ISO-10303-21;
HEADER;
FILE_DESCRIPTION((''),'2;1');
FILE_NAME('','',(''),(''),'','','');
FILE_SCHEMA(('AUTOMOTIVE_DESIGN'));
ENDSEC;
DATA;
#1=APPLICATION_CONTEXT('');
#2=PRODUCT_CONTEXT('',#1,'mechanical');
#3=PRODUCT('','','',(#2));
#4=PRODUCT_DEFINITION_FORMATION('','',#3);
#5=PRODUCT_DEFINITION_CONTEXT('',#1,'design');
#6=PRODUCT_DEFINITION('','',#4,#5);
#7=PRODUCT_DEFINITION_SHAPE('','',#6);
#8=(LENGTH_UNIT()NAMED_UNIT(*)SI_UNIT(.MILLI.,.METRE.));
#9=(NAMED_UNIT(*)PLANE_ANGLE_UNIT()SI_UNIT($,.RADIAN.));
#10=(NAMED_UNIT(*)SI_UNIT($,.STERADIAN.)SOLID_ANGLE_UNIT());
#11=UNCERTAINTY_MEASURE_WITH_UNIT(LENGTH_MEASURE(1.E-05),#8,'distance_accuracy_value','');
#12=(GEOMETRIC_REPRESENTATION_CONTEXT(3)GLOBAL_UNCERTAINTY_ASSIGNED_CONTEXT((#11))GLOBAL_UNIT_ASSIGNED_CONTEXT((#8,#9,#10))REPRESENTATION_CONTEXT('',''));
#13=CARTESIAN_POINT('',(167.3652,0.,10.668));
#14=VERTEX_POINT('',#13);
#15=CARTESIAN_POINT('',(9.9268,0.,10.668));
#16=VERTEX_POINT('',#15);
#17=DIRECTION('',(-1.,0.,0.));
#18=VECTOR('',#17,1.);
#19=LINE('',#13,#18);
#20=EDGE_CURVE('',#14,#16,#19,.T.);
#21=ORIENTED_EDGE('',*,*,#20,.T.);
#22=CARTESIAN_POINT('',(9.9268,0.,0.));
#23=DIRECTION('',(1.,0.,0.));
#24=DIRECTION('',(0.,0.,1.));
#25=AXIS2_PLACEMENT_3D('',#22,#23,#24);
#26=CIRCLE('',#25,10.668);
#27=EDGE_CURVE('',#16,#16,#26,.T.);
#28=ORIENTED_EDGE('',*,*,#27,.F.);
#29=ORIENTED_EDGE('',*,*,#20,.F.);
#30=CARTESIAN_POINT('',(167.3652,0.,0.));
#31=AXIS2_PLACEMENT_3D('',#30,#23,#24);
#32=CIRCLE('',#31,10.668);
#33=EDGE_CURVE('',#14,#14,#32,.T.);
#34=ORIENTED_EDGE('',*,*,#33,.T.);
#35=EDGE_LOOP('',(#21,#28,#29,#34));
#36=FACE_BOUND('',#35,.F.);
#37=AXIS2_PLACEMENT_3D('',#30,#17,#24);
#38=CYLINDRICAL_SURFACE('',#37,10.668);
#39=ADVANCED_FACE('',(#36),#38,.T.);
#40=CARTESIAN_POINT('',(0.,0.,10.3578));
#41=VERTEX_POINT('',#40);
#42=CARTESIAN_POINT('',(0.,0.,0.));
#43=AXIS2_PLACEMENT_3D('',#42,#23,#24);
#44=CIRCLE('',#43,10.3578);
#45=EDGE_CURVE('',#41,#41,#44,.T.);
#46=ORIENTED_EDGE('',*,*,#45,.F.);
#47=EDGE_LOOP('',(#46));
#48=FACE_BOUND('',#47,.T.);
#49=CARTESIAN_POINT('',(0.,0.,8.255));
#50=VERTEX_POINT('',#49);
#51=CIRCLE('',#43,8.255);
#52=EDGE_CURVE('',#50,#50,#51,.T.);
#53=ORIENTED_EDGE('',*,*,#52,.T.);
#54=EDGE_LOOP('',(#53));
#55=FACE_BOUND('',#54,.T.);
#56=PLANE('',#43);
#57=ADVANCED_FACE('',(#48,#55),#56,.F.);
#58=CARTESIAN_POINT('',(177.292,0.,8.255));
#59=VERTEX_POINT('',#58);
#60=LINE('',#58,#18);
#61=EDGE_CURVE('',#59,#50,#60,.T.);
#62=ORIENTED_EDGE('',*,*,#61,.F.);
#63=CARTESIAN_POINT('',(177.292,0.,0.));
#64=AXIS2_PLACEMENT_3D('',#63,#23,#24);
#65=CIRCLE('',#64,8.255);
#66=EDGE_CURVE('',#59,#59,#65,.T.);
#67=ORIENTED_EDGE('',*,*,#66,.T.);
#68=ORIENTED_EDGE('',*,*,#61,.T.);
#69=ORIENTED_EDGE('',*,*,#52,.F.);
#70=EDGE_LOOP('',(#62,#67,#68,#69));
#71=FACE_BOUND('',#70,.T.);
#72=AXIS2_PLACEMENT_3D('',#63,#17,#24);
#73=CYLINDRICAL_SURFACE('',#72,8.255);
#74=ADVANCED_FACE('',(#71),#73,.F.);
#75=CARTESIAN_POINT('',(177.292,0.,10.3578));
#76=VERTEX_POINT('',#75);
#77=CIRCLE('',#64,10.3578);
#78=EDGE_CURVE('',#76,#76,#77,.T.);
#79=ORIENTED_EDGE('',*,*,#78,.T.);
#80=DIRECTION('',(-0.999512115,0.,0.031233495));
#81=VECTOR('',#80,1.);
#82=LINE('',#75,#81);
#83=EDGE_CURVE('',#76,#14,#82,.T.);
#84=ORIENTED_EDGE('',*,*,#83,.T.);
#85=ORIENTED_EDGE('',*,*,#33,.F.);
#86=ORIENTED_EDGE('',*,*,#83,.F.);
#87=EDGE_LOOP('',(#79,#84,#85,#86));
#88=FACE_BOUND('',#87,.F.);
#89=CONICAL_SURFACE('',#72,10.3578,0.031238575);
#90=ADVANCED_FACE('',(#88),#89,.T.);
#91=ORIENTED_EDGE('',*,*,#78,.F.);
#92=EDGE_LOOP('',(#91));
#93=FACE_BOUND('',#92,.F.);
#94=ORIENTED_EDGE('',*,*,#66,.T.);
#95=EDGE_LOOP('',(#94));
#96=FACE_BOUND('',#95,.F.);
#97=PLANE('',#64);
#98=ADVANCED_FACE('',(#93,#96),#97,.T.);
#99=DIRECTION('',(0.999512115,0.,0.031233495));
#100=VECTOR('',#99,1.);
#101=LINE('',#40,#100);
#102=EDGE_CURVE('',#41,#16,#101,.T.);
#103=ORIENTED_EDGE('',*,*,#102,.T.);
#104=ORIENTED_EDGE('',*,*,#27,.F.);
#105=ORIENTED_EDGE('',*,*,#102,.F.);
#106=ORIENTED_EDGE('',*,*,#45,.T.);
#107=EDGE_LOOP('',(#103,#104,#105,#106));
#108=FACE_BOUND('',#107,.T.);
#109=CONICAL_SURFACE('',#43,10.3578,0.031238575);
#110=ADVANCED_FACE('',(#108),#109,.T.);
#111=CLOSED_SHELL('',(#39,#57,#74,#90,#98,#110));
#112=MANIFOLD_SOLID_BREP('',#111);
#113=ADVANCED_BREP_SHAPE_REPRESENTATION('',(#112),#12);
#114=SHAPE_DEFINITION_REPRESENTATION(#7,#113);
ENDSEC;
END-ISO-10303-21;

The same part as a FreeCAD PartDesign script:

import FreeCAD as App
import Part
import Sketcher
from FreeCAD import Vector
Q = App.Units.Quantity

doc = App.newDocument("Part")
body = doc.addObject("PartDesign::Body", "Body")

sketch1 = body.newObject("Sketcher::SketchObject", "Sketch")
sketch1.AttachmentSupport = (doc.getObject("XZ_Plane"), [""])
sketch1.MapMode = "FlatFace"
sketch1.addGeometry([
    Part.LineSegment(Vector(177.3, 10.4, 0), Vector(177.3, 8.3, 0)),
    Part.LineSegment(Vector(177.3, 8.3, 0), Vector(0, 8.3, 0)),
    Part.LineSegment(Vector(0, 8.3, 0), Vector(0, 10.4, 0)),
    Part.LineSegment(Vector(0, 10.4, 0), Vector(9.9, 10.7, 0)),
    Part.LineSegment(Vector(9.9, 10.7, 0), Vector(167.4, 10.7, 0)),
    Part.LineSegment(Vector(167.4, 10.7, 0), Vector(177.3, 10.4, 0)),
], False)
sketch1.addConstraint([
    Sketcher.Constraint("Coincident", 0, 2, 1, 1),
    Sketcher.Constraint("Coincident", 1, 2, 2, 1),
    Sketcher.Constraint("Coincident", 2, 2, 3, 1),
    Sketcher.Constraint("Coincident", 3, 2, 4, 1),
    Sketcher.Constraint("Coincident", 4, 2, 5, 1),
    Sketcher.Constraint("Coincident", 5, 2, 0, 1),
    Sketcher.Constraint("Vertical", 0),
    Sketcher.Constraint("Horizontal", 1),
    Sketcher.Constraint("Vertical", 2),
    Sketcher.Constraint("Horizontal", 4),
    Sketcher.Constraint("PointOnObject", 1, 2, -2),
    Sketcher.Constraint("Horizontal", 2, 2, 5, 2),
    Sketcher.Constraint("Equal", 3, 5),
    Sketcher.Constraint("DistanceX", 1, 2, 1, 1, Q("6.98 in")),
    Sketcher.Constraint("Angle", 3, Q("1.7898 deg")),
    Sketcher.Constraint("DistanceY", -1, 1, 3, 2, Q("0.42 in")),
    Sketcher.Constraint("Distance", 3, Q("0.391 in")),
    Sketcher.Constraint("DistanceY", -1, 1, 0, 2, Q("0.325 in")),
])
revolution = body.newObject("PartDesign::Revolution", "Revolution")
revolution.Profile = sketch1
revolution.ReferenceAxis = (sketch1, ["H_Axis"])
revolution.Angle = 360

doc.recompute()
